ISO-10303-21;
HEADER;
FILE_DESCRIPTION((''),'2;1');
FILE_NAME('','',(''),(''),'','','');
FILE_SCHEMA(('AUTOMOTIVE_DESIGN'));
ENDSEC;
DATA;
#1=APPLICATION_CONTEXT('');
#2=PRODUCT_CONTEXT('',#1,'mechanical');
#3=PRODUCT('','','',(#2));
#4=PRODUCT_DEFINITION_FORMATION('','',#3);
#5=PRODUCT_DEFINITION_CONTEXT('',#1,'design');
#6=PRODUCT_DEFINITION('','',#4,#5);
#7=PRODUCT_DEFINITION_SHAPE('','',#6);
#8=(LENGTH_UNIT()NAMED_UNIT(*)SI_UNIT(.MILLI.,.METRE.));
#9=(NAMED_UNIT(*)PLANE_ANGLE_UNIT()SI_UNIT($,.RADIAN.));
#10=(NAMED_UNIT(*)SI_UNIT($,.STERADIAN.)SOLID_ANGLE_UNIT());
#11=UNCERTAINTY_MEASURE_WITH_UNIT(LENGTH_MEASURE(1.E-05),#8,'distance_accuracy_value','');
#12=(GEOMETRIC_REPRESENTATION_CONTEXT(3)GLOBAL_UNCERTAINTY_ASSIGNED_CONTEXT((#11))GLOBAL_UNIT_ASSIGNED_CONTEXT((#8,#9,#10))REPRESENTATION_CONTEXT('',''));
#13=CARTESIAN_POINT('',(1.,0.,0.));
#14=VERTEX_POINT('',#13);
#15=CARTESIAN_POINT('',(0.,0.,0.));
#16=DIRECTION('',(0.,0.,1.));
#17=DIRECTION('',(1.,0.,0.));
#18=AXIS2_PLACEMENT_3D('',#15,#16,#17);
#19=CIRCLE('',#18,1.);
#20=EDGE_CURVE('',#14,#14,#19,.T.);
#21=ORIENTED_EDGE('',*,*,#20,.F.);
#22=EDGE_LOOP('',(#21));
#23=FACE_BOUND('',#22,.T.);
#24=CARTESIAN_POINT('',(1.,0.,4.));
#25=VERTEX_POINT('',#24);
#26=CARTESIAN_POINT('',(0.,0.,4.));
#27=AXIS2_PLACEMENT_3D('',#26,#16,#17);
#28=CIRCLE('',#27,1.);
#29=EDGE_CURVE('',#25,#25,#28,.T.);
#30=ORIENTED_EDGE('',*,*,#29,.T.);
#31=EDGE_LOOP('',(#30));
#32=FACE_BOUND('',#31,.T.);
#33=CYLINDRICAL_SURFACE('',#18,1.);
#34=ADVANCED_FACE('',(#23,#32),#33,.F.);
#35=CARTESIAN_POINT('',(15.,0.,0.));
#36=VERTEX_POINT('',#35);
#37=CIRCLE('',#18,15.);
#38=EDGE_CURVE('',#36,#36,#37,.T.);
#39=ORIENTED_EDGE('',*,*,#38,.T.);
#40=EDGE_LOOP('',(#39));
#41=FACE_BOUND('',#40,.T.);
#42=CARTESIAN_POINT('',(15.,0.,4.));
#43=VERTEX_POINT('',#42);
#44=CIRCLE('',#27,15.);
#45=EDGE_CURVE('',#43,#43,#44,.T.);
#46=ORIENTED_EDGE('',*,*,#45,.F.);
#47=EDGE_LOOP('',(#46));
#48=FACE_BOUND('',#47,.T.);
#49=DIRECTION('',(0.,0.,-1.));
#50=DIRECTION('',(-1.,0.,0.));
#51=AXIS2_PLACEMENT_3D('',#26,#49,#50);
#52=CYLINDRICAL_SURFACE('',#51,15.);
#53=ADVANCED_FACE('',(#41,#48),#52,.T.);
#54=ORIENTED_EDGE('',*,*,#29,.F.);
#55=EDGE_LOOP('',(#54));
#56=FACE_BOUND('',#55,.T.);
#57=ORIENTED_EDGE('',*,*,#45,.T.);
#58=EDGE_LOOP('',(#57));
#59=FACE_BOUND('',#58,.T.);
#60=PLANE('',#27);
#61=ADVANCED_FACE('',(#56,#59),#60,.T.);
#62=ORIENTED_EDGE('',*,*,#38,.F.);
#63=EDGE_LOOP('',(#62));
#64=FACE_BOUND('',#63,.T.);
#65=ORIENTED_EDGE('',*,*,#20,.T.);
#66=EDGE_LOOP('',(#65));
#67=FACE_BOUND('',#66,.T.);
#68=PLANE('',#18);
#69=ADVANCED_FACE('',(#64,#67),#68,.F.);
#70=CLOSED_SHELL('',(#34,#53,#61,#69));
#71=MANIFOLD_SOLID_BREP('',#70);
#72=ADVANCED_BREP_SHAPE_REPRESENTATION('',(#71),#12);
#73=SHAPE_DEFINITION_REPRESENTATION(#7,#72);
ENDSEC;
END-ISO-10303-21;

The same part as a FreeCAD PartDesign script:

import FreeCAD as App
import Part
import Sketcher

V = App.Vector
Q = App.Units.Quantity

doc = App.newDocument("Part")
body = doc.addObject("PartDesign::Body", "Body")

# Sketch on XY plane
sketch1 = doc.addObject("Sketcher::SketchObject", "Sketch")
body.addObject(sketch1)
sketch1.AttachmentSupport = (doc.XY_Plane, [""])
sketch1.MapMode = "FlatFace"
sketch1.addGeometry(Part.Circle(V(0, 0, 0), V(0, 0, 1), 15), False)
sketch1.addConstraint([
    Sketcher.Constraint("Coincident", 0, 3, -1, 1),
    Sketcher.Constraint("Diameter", 0, Q("30 mm")),
])
pad1 = doc.addObject("PartDesign::Pad", "Pad")
body.addObject(pad1)
pad1.Profile = sketch1
pad1.Length = 4

# Sketch on XY plane
sketch2 = doc.addObject("Sketcher::SketchObject", "Sketch001")
body.addObject(sketch2)
sketch2.AttachmentSupport = (doc.XY_Plane, [""])
sketch2.MapMode = "FlatFace"
sketch2.AttachmentOffset = App.Placement(V(0, 0, 4), App.Rotation())
sketch2.addGeometry(Part.Circle(V(0, 0, 0), V(0, 0, 1), 1), False)
sketch2.addConstraint([
    Sketcher.Constraint("Coincident", 0, 3, -1, 1),
    Sketcher.Constraint("Diameter", 0, Q("2 mm")),
])
pocket1 = doc.addObject("PartDesign::Pocket", "Pocket")
body.addObject(pocket1)
pocket1.Profile = sketch2
pocket1.Type = "ThroughAll"

doc.recompute()
